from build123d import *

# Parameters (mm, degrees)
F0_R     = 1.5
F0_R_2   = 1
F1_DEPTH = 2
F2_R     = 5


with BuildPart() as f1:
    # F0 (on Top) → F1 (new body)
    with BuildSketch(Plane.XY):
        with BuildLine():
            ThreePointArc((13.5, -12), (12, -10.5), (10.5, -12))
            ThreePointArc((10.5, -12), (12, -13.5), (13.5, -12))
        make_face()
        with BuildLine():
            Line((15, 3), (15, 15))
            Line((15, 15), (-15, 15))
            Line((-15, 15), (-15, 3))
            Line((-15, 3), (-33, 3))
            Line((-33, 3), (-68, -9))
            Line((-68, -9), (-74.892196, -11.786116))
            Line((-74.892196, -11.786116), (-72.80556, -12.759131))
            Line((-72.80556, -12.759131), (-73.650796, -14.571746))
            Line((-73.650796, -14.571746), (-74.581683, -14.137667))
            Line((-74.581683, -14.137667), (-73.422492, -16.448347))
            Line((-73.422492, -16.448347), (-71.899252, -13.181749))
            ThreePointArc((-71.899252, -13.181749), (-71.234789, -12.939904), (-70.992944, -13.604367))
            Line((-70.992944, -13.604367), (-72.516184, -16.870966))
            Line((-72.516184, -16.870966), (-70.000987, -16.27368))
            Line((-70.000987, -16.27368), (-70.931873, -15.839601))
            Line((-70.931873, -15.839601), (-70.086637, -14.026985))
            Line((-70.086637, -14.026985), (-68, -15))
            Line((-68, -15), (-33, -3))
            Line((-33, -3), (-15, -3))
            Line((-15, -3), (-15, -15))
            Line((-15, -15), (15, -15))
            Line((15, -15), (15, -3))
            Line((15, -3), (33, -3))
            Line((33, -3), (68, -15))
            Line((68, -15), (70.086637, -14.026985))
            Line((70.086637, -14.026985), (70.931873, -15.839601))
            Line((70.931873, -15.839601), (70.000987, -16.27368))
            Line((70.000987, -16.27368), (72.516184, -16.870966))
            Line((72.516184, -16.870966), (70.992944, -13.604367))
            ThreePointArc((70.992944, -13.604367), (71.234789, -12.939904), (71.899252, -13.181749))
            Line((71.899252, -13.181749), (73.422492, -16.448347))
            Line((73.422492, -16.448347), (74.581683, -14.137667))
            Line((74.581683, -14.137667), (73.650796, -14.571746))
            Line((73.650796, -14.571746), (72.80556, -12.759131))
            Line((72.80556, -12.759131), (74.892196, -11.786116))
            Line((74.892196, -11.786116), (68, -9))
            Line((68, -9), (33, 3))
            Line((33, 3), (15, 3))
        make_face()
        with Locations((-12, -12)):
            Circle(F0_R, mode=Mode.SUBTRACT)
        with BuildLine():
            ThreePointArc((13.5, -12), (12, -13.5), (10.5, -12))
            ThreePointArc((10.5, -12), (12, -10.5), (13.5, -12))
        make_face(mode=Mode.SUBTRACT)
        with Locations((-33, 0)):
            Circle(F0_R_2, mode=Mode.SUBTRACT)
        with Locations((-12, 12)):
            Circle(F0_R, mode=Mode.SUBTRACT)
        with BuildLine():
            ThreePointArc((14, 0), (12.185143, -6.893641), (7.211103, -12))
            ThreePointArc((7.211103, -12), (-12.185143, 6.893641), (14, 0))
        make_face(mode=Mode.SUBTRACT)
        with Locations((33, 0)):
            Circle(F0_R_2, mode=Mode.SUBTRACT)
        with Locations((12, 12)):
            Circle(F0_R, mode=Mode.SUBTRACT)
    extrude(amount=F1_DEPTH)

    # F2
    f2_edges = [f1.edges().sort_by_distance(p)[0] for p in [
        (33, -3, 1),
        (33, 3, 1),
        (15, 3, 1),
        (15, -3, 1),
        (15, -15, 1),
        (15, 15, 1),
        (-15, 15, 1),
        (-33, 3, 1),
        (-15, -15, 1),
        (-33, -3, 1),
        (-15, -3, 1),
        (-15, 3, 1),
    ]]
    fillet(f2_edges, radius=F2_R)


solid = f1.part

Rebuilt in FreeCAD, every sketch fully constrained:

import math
import FreeCAD as App
import Part
import Sketcher
from FreeCAD import Vector
Q = App.Units.Quantity


def edges_at(feature, points):
    """Names of the edges that pass closest to the given points."""
    edges = feature.Shape.Edges
    near = lambda p: min(range(len(edges)), key=lambda i: edges[i].distToShape(Part.Vertex(*p))[0])
    return sorted({f"Edge{near(p) + 1}" for p in points})

doc = App.newDocument("Part")
params = doc.addObject("Spreadsheet::Sheet", "Params")
for row, (alias, value) in enumerate([
    ("sketch1_diameter", "3 mm"),
    ("sketch1_diameter2", "2 mm"),
    ("sketch1_radius", "14 mm"),
    ("sketch1_radius2", "0.5 mm"),
    ("sketch1_width", "30 mm"),
    ("pad1_length", "2 mm"),
    ("fillet_radius", "5 mm"),
], start=1):
    params.set(f"A{row}", alias)
    params.set(f"B{row}", "=" + value)
    params.setAlias(f"B{row}", alias)

body = doc.addObject("PartDesign::Body", "Body")

sketch1 = body.newObject("Sketcher::SketchObject", "Sketch")
sketch1.AttachmentSupport = (doc.getObject("XY_Plane"), [""])
sketch1.MapMode = "FlatFace"
sketch1.addGeometry([
    Part.LineSegment(Vector(15, 3, 0), Vector(15, 15, 0)),
    Part.LineSegment(Vector(15, 15, 0), Vector(-15, 15, 0)),
    Part.LineSegment(Vector(-15, 15, 0), Vector(-15, 3, 0)),
    Part.LineSegment(Vector(-15, 3, 0), Vector(-33, 3, 0)),
    Part.LineSegment(Vector(-33, 3, 0), Vector(-68, -9, 0)),
    Part.LineSegment(Vector(-68, -9, 0), Vector(-74.9, -11.8, 0)),
    Part.LineSegment(Vector(-74.9, -11.8, 0), Vector(-72.8, -12.8, 0)),
    Part.LineSegment(Vector(-72.8, -12.8, 0), Vector(-73.7, -14.6, 0)),
    Part.LineSegment(Vector(-73.7, -14.6, 0), Vector(-74.6, -14.1, 0)),
    Part.LineSegment(Vector(-74.6, -14.1, 0), Vector(-73.4, -16.4, 0)),
    Part.LineSegment(Vector(-73.4, -16.4, 0), Vector(-71.9, -13.2, 0)),
    Part.ArcOfCircle(Part.Circle(Vector(-71.4, -13.4, 0), Vector(0, 0, 1), 0.5), math.radians(-25), math.radians(155)),
    Part.LineSegment(Vector(-71, -13.6, 0), Vector(-72.5, -16.9, 0)),
    Part.LineSegment(Vector(-72.5, -16.9, 0), Vector(-70, -16.3, 0)),
    Part.LineSegment(Vector(-70, -16.3, 0), Vector(-70.9, -15.8, 0)),
    Part.LineSegment(Vector(-70.9, -15.8, 0), Vector(-70.1, -14, 0)),
    Part.LineSegment(Vector(-70.1, -14, 0), Vector(-68, -15, 0)),
    Part.LineSegment(Vector(-68, -15, 0), Vector(-33, -3, 0)),
    Part.LineSegment(Vector(-33, -3, 0), Vector(-15, -3, 0)),
    Part.LineSegment(Vector(-15, -3, 0), Vector(-15, -15, 0)),
    Part.LineSegment(Vector(-15, -15, 0), Vector(15, -15, 0)),
    Part.LineSegment(Vector(15, -15, 0), Vector(15, -3, 0)),
    Part.LineSegment(Vector(15, -3, 0), Vector(33, -3, 0)),
    Part.LineSegment(Vector(33, -3, 0), Vector(68, -15, 0)),
    Part.LineSegment(Vector(68, -15, 0), Vector(70.1, -14, 0)),
    Part.LineSegment(Vector(70.1, -14, 0), Vector(70.9, -15.8, 0)),
    Part.LineSegment(Vector(70.9, -15.8, 0), Vector(70, -16.3, 0)),
    Part.LineSegment(Vector(70, -16.3, 0), Vector(72.5, -16.9, 0)),
    Part.LineSegment(Vector(72.5, -16.9, 0), Vector(71, -13.6, 0)),
    Part.ArcOfCircle(Part.Circle(Vector(71.4, -13.4, 0), Vector(0, 0, 1), 0.5), math.radians(25), math.radians(205)),
    Part.LineSegment(Vector(71.9, -13.2, 0), Vector(73.4, -16.4, 0)),
    Part.LineSegment(Vector(73.4, -16.4, 0), Vector(74.6, -14.1, 0)),
    Part.LineSegment(Vector(74.6, -14.1, 0), Vector(73.7, -14.6, 0)),
    Part.LineSegment(Vector(73.7, -14.6, 0), Vector(72.8, -12.8, 0)),
    Part.LineSegment(Vector(72.8, -12.8, 0), Vector(74.9, -11.8, 0)),
    Part.LineSegment(Vector(74.9, -11.8, 0), Vector(68, -9, 0)),
    Part.LineSegment(Vector(68, -9, 0), Vector(33, 3, 0)),
    Part.LineSegment(Vector(33, 3, 0), Vector(15, 3, 0)),
    Part.Circle(Vector(-12, -12, 0), Vector(0, 0, 1), 1.5),
    Part.Circle(Vector(12, -12, 0), Vector(0, 0, 1), 1.5),
    Part.Circle(Vector(-33, 0, 0), Vector(0, 0, 1), 1),
    Part.Circle(Vector(-12, 12, 0), Vector(0, 0, 1), 1.5),
    Part.ArcOfCircle(Part.Circle(Vector(0, 0, 0), Vector(0, 0, 1), 14), math.radians(0), math.radians(301)),
    Part.ArcOfCircle(Part.Circle(Vector(0, 0, 0), Vector(0, 0, 1), 14), math.radians(-59), math.radians(0)),
    Part.Circle(Vector(33, 0, 0), Vector(0, 0, 1), 1),
    Part.Circle(Vector(12, 12, 0), Vector(0, 0, 1), 1.5),
], False)
sketch1.addConstraint([
    Sketcher.Constraint("Coincident", 0, 2, 1, 1),
    Sketcher.Constraint("Coincident", 1, 2, 2, 1),
    Sketcher.Constraint("Coincident", 2, 2, 3, 1),
    Sketcher.Constraint("Coincident", 3, 2, 4, 1),
    Sketcher.Constraint("Coincident", 4, 2, 5, 1),
    Sketcher.Constraint("Coincident", 5, 2, 6, 1),
    Sketcher.Constraint("Coincident", 6, 2, 7, 1),
    Sketcher.Constraint("Coincident", 7, 2, 8, 1),
    Sketcher.Constraint("Coincident", 8, 2, 9, 1),
    Sketcher.Constraint("Coincident", 9, 2, 10, 1),
    Sketcher.Constraint("Tangent", 10, 2, 11, 2),
    Sketcher.Constraint("Tangent", 11, 1, 12, 1),
    Sketcher.Constraint("Coincident", 12, 2, 13, 1),
    Sketcher.Constraint("Coincident", 13, 2, 14, 1),
    Sketcher.Constraint("Coincident", 14, 2, 15, 1),
    Sketcher.Constraint("Coincident", 15, 2, 16, 1),
    Sketcher.Constraint("Coincident", 16, 2, 17, 1),
    Sketcher.Constraint("Coincident", 17, 2, 18, 1),
    Sketcher.Constraint("Coincident", 18, 2, 19, 1),
    Sketcher.Constraint("Coincident", 19, 2, 20, 1),
    Sketcher.Constraint("Coincident", 20, 2, 21, 1),
    Sketcher.Constraint("Coincident", 21, 2, 22, 1),
    Sketcher.Constraint("Coincident", 22, 2, 23, 1),
    Sketcher.Constraint("Coincident", 23, 2, 24, 1),
    Sketcher.Constraint("Coincident", 24, 2, 25, 1),
    Sketcher.Constraint("Coincident", 25, 2, 26, 1),
    Sketcher.Constraint("Coincident", 26, 2, 27, 1),
    Sketcher.Constraint("Coincident", 27, 2, 28, 1),
    Sketcher.Constraint("Tangent", 28, 2, 29, 2),
    Sketcher.Constraint("Tangent", 29, 1, 30, 1),
    Sketcher.Constraint("Coincident", 30, 2, 31, 1),
    Sketcher.Constraint("Coincident", 31, 2, 32, 1),
    Sketcher.Constraint("Coincident", 32, 2, 33, 1),
    Sketcher.Constraint("Coincident", 33, 2, 34, 1),
    Sketcher.Constraint("Coincident", 34, 2, 35, 1),
    Sketcher.Constraint("Coincident", 35, 2, 36, 1),
    Sketcher.Constraint("Coincident", 36, 2, 37, 1),
    Sketcher.Constraint("Coincident", 37, 2, 0, 1),
    Sketcher.Constraint("Tangent", 42, 1, 43, 2),
    Sketcher.Constraint("Coincident", 43, 1, 42, 2),
    Sketcher.Constraint("Vertical", 0),
    Sketcher.Constraint("Horizontal", 1),
    Sketcher.Constraint("Vertical", 2),
    Sketcher.Constraint("Horizontal", 3),
    Sketcher.Constraint("Horizontal", 18),
    Sketcher.Constraint("Vertical", 19),
    Sketcher.Constraint("Horizontal", 20),
    Sketcher.Constraint("Vertical", 21),
    Sketcher.Constraint("Horizontal", 22),
    Sketcher.Constraint("Horizontal", 37),
    Sketcher.Constraint("Coincident", 42, 3, -1, 1),
    Sketcher.Constraint("Equal", 11, 29),
    Sketcher.Constraint("Equal", 38, 39),
    Sketcher.Constraint("Equal", 39, 41),
    Sketcher.Constraint("Equal", 40, 44),
    Sketcher.Constraint("Equal", 41, 45),
    Sketcher.Constraint("Symmetric", 39, 3, 41, 3, -1, 1),
    Sketcher.Constraint("Symmetric", 40, 3, 44, 3, -1, 1),
    Sketcher.Constraint("Symmetric", 38, 3, 45, 3, -1, 1),
    Sketcher.Constraint("Symmetric", 0, 2, 19, 2, -1, 1),
    Sketcher.Constraint("Symmetric", 2, 2, 21, 2, -1, 1),
    Sketcher.Constraint("Symmetric", 17, 2, 36, 2, -1, 1),
    Sketcher.Constraint("Symmetric", 11, 3, 29, 3, -2),
    Sketcher.Constraint("Symmetric", 38, 3, 39, 3, -2),
    Sketcher.Constraint("Symmetric", 18, 2, 21, 2, -2),
    Sketcher.Constraint("Symmetric", 16, 2, 23, 2, -2),
    Sketcher.Constraint("Symmetric", 15, 2, 24, 2, -2),
    Sketcher.Constraint("Symmetric", 14, 2, 25, 2, -2),
    Sketcher.Constraint("Symmetric", 13, 2, 26, 2, -2),
    Sketcher.Constraint("Symmetric", 12, 2, 27, 2, -2),
    Sketcher.Constraint("Symmetric", 9, 2, 30, 2, -2),
    Sketcher.Constraint("Symmetric", 8, 2, 31, 2, -2),
    Sketcher.Constraint("Symmetric", 7, 2, 32, 2, -2),
    Sketcher.Constraint("Symmetric", 6, 2, 33, 2, -2),
    Sketcher.Constraint("Symmetric", 5, 2, 34, 2, -2),
    Sketcher.Constraint("Symmetric", 4, 2, 35, 2, -2),
    Sketcher.Constraint("PointOnObject", 40, 3, -1),
    Sketcher.Constraint("PointOnObject", 42, 1, -1),
    Sketcher.Constraint("Perpendicular", 6, 7),
    Sketcher.Constraint("Perpendicular", 7, 8),
    Sketcher.Constraint("Perpendicular", 8, 10),
    Sketcher.Constraint("Parallel", 10, 12),
    Sketcher.Constraint("Perpendicular", 12, 14),
    Sketcher.Constraint("Perpendicular", 14, 15),
    Sketcher.Constraint("Perpendicular", 15, 16),
    Sketcher.Constraint("Parallel", 4, 17),
    Sketcher.Constraint("Parallel", 23, 36),
    Sketcher.Constraint("Horizontal", 16, 2, 19, 2),
    Sketcher.Constraint("Horizontal", 39, 3, 43, 1),
    Sketcher.Constraint("Vertical", 40, 3, 3, 2),
    Sketcher.Constraint("Vertical", 4, 2, 16, 2),
    Sketcher.Constraint("Vertical", 3, 2, 17, 2),
    Sketcher.Constraint("Equal", 10, 12),
    Sketcher.Constraint("Equal", 9, 13),
    Sketcher.Constraint("Equal", 8, 14),
    Sketcher.Constraint("Equal", 7, 15),
    Sketcher.Constraint("Equal", 6, 16),
    Sketcher.Constraint("Diameter", 38, 3.0),
    Sketcher.Constraint("Diameter", 40, 2.0),
    Sketcher.Constraint("Radius", 42, 14.0),
    Sketcher.Constraint("Radius", 11, 0.5),
    Sketcher.Constraint("DistanceX", 1, 2, 1, 1, 30.0),
    Sketcher.Constraint("DistanceX", 3, 2, 3, 1, 18.0),
    Sketcher.Constraint("DistanceY", 0, 1, 0, 2, 12.0),
    Sketcher.Constraint("Angle", 6, Q("-25.000015 deg")),
    Sketcher.Constraint("Distance", 4, 37.0),
    Sketcher.Constraint("Distance", 7, 1.999999),
    Sketcher.Constraint("DistanceX", 38, 3, -1, 1, 12.0),
    Sketcher.Constraint("DistanceY", 38, 3, -1, 1, 12.0),
    Sketcher.Constraint("DistanceY", -1, 1, 0, 2, 15.0),
    Sketcher.Constraint("DistanceX", 11, 3, -1, 1, 71.446098),
    Sketcher.Constraint("DistanceY", 14, 2, -1, 1, 15.839601),
    Sketcher.Constraint("DistanceY", 9, 2, 7, 2, 1.876601),
    Sketcher.Constraint("DistanceY", 8, 2, 11, 1, 0.5333),
    Sketcher.Constraint("DistanceX", 8, 2, 12, 2, 2.065499),
    Sketcher.Constraint("DistanceY", 12, 2, 8, 2, 2.733299),
])
sketch1.setExpression("Constraints[97]", "Params.sketch1_diameter")
sketch1.setExpression("Constraints[98]", "Params.sketch1_diameter2")
sketch1.setExpression("Constraints[99]", "Params.sketch1_radius")
sketch1.setExpression("Constraints[100]", "Params.sketch1_radius2")
sketch1.setExpression("Constraints[101]", "Params.sketch1_width")
pad1 = body.newObject("PartDesign::Pad", "Pad")
pad1.Profile = sketch1
pad1.setExpression("Length", "Params.pad1_length")
doc.recompute()

fillet = body.newObject("PartDesign::Fillet", "Fillet")
fillet.Base = (pad1, edges_at(pad1, [
    (33, -3, 1),
    (33, 3, 1),
    (15, 3, 1),
    (15, -3, 1),
    (15, -15, 1),
    (15, 15, 1),
    (-15, 15, 1),
    (-33, 3, 1),
    (-15, -15, 1),
    (-33, -3, 1),
    (-15, -3, 1),
    (-15, 3, 1),
]))
fillet.setExpression("Radius", "Params.fillet_radius")

doc.recompute()
